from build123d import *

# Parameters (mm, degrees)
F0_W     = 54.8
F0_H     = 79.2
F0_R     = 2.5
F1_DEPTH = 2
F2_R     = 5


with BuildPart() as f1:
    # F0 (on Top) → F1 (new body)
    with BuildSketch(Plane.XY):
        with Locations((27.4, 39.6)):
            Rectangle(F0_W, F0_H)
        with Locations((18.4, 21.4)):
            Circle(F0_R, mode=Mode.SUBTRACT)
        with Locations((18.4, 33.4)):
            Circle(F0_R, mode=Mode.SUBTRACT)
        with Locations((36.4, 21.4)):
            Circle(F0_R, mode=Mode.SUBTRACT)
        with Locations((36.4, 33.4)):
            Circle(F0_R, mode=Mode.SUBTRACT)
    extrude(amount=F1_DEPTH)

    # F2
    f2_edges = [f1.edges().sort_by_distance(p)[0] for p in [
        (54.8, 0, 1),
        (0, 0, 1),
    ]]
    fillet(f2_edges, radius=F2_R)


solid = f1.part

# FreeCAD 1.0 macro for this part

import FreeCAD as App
import Part
import Sketcher
from FreeCAD import Vector
Q = App.Units.Quantity


def edges_at(feature, points):
    """Names of the edges that pass closest to the given points."""
    edges = feature.Shape.Edges
    near = lambda p: min(range(len(edges)), key=lambda i: edges[i].distToShape(Part.Vertex(*p))[0])
    return sorted({f"Edge{near(p) + 1}" for p in points})

doc = App.newDocument("Part")
params = doc.addObject("Spreadsheet::Sheet", "Params")
for row, (alias, value) in enumerate([
    ("sketch1_diameter", "5 mm"),
    ("sketch1_width", "54.8 mm"),
    ("sketch1_height", "79.2 mm"),
    ("pad1_length", "2 mm"),
    ("fillet_radius", "5 mm"),
], start=1):
    params.set(f"A{row}", alias)
    params.set(f"B{row}", "=" + value)
    params.setAlias(f"B{row}", alias)

body = doc.addObject("PartDesign::Body", "Body")

# Sketch on XY plane
sketch1 = body.newObject("Sketcher::SketchObject", "Sketch")
sketch1.AttachmentSupport = (doc.getObject("XY_Plane"), [""])
sketch1.MapMode = "FlatFace"
sketch1.addGeometry([
    Part.LineSegment(Vector(0, 79.2, 0), Vector(0, 0, 0)),  # 0
    Part.LineSegment(Vector(0, 0, 0), Vector(54.8, 0, 0)),  # 1
    Part.LineSegment(Vector(54.8, 0, 0), Vector(54.8, 79.2, 0)),  # 2
    Part.LineSegment(Vector(54.8, 79.2, 0), Vector(0, 79.2, 0)),  # 3
    Part.Circle(Vector(18.4, 21.4, 0), Vector(0, 0, 1), 2.5),  # 4
    Part.Circle(Vector(36.4, 21.4, 0), Vector(0, 0, 1), 2.5),  # 5
    Part.Circle(Vector(18.4, 33.4, 0), Vector(0, 0, 1), 2.5),  # 6
    Part.Circle(Vector(36.4, 33.4, 0), Vector(0, 0, 1), 2.5),  # 7
], False)
sketch1.addConstraint([
    Sketcher.Constraint("Coincident", 0, 2, 1, 1),
    Sketcher.Constraint("Coincident", 1, 2, 2, 1),
    Sketcher.Constraint("Coincident", 2, 2, 3, 1),
    Sketcher.Constraint("Coincident", 3, 2, 0, 1),
    Sketcher.Constraint("Vertical", 0),
    Sketcher.Constraint("Horizontal", 1),
    Sketcher.Constraint("Vertical", 2),
    Sketcher.Constraint("Horizontal", 3),
    Sketcher.Constraint("Coincident", 0, 2, -1, 1),
    Sketcher.Constraint("Equal", 4, 5),
    Sketcher.Constraint("Equal", 5, 6),
    Sketcher.Constraint("Equal", 6, 7),
    Sketcher.Constraint("Horizontal", 4, 3, 5, 3),
    Sketcher.Constraint("Horizontal", 6, 3, 7, 3),
    Sketcher.Constraint("Vertical", 4, 3, 6, 3),
    Sketcher.Constraint("Vertical", 5, 3, 7, 3),
    Sketcher.Constraint("Diameter", 4, Q("5 mm")),
    Sketcher.Constraint("DistanceX", 1, 1, 1, 2, Q("54.8 mm")),
    Sketcher.Constraint("DistanceY", 0, 2, 0, 1, Q("79.2 mm")),
    Sketcher.Constraint("DistanceX", 4, 3, 5, 3, Q("18 mm")),
    Sketcher.Constraint("DistanceY", 4, 3, 6, 3, Q("12 mm")),
    Sketcher.Constraint("DistanceX", -1, 1, 4, 3, Q("18.4 mm")),
    Sketcher.Constraint("DistanceY", -1, 1, 4, 3, Q("21.4 mm")),
])
sketch1.setExpression("Constraints[16]", "Params.sketch1_diameter")
sketch1.setExpression("Constraints[17]", "Params.sketch1_width")
sketch1.setExpression("Constraints[18]", "Params.sketch1_height")
pad1 = body.newObject("PartDesign::Pad", "Pad")
pad1.Profile = sketch1
pad1.setExpression("Length", "Params.pad1_length")
doc.recompute()

fillet = body.newObject("PartDesign::Fillet", "Fillet")
fillet.Base = (pad1, edges_at(pad1, [(54.8, 0, 1), (0, 0, 1)]))
fillet.setExpression("Radius", "Params.fillet_radius")

doc.recompute()
